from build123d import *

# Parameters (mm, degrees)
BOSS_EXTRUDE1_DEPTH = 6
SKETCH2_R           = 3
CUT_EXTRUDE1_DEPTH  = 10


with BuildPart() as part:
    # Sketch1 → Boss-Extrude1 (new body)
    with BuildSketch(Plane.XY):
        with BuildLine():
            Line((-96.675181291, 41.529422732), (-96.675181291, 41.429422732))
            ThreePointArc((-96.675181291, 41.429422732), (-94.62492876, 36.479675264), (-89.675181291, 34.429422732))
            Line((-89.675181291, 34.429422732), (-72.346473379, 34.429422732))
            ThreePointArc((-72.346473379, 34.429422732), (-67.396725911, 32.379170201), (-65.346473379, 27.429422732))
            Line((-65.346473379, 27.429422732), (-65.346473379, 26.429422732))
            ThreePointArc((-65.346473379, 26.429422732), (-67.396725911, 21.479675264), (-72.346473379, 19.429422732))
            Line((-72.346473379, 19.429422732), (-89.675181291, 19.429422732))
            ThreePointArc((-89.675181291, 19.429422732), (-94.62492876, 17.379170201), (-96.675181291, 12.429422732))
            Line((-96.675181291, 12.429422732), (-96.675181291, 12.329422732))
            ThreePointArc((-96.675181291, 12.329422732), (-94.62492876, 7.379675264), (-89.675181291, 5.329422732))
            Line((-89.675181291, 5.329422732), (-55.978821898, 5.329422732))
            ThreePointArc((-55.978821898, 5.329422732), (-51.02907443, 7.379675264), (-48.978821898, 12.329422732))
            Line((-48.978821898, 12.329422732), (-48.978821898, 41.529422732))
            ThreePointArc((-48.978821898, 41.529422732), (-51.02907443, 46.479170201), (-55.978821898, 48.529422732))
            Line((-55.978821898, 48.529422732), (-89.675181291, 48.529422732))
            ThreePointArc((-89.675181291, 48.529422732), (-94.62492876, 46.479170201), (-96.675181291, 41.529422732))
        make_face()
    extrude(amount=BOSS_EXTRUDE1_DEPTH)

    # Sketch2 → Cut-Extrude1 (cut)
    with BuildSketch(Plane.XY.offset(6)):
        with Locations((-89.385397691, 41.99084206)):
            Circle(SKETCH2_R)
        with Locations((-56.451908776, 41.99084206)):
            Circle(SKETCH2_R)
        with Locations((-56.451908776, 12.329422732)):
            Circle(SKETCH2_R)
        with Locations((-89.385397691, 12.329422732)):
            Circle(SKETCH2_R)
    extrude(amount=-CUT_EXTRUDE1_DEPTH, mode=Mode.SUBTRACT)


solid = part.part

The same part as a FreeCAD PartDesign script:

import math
import FreeCAD as App
import Part
import Sketcher

doc = App.newDocument("Part")
body = doc.addObject("PartDesign::Body", "Body")

sketch1 = doc.addObject("Sketcher::SketchObject", "Sketch")
body.addObject(sketch1)
sketch1.AttachmentSupport = (doc.XY_Plane, [""])
sketch1.MapMode = "FlatFace"
sketch1.addGeometry([
    Part.LineSegment(App.Vector(-96.675181, 41.529423, 0), App.Vector(-96.675181, 41.429423, 0)),
    Part.ArcOfCircle(Part.Circle(App.Vector(-89.675181, 41.429423, 0), App.Vector(0, 0, 1), 7), math.radians(180), math.radians(270)),
    Part.LineSegment(App.Vector(-89.675181, 34.429423, 0), App.Vector(-72.346473, 34.429423, 0)),
    Part.ArcOfCircle(Part.Circle(App.Vector(-72.346473, 27.429423, 0), App.Vector(0, 0, 1), 7), math.radians(0), math.radians(90)),
    Part.LineSegment(App.Vector(-65.346473, 27.429423, 0), App.Vector(-65.346473, 26.429423, 0)),
    Part.ArcOfCircle(Part.Circle(App.Vector(-72.346473, 26.429423, 0), App.Vector(0, 0, 1), 7), math.radians(-90), math.radians(0)),
    Part.LineSegment(App.Vector(-72.346473, 19.429423, 0), App.Vector(-89.675181, 19.429423, 0)),
    Part.ArcOfCircle(Part.Circle(App.Vector(-89.675181, 12.429423, 0), App.Vector(0, 0, 1), 7), math.radians(90), math.radians(180)),
    Part.LineSegment(App.Vector(-96.675181, 12.429423, 0), App.Vector(-96.675181, 12.329423, 0)),
    Part.ArcOfCircle(Part.Circle(App.Vector(-89.675181, 12.329423, 0), App.Vector(0, 0, 1), 7), math.radians(180), math.radians(270)),
    Part.LineSegment(App.Vector(-89.675181, 5.329423, 0), App.Vector(-55.978822, 5.329423, 0)),
    Part.ArcOfCircle(Part.Circle(App.Vector(-55.978822, 12.329423, 0), App.Vector(0, 0, 1), 7), math.radians(-90), math.radians(0)),
    Part.LineSegment(App.Vector(-48.978822, 12.329423, 0), App.Vector(-48.978822, 41.529423, 0)),
    Part.ArcOfCircle(Part.Circle(App.Vector(-55.978822, 41.529423, 0), App.Vector(0, 0, 1), 7), math.radians(0), math.radians(90)),
    Part.LineSegment(App.Vector(-55.978822, 48.529423, 0), App.Vector(-89.675181, 48.529423, 0)),
    Part.ArcOfCircle(Part.Circle(App.Vector(-89.675181, 41.529423, 0), App.Vector(0, 0, 1), 7), math.radians(90), math.radians(180)),
], False)
sketch1.addConstraint([
    Sketcher.Constraint("Tangent", 0, 2, 1, 1),
    Sketcher.Constraint("Tangent", 1, 2, 2, 1),
    Sketcher.Constraint("Tangent", 2, 2, 3, 2),
    Sketcher.Constraint("Tangent", 3, 1, 4, 1),
    Sketcher.Constraint("Tangent", 4, 2, 5, 2),
    Sketcher.Constraint("Tangent", 5, 1, 6, 1),
    Sketcher.Constraint("Tangent", 6, 2, 7, 1),
    Sketcher.Constraint("Tangent", 7, 2, 8, 1),
    Sketcher.Constraint("Tangent", 8, 2, 9, 1),
    Sketcher.Constraint("Tangent", 9, 2, 10, 1),
    Sketcher.Constraint("Tangent", 10, 2, 11, 1),
    Sketcher.Constraint("Tangent", 11, 2, 12, 1),
    Sketcher.Constraint("Tangent", 12, 2, 13, 1),
    Sketcher.Constraint("Tangent", 13, 2, 14, 1),
    Sketcher.Constraint("Tangent", 14, 2, 15, 1),
    Sketcher.Constraint("Tangent", 15, 2, 0, 1),
    Sketcher.Constraint("Vertical", 0),
    Sketcher.Constraint("Horizontal", 2),
    Sketcher.Constraint("Vertical", 4),
    Sketcher.Constraint("Horizontal", 6),
    Sketcher.Constraint("Vertical", 8),
    Sketcher.Constraint("Horizontal", 10),
    Sketcher.Constraint("Vertical", 12),
    Sketcher.Constraint("Horizontal", 14),
    Sketcher.Constraint("Equal", 1, 3),
    Sketcher.Constraint("Equal", 3, 5),
    Sketcher.Constraint("Equal", 5, 7),
    Sketcher.Constraint("Equal", 7, 9),
    Sketcher.Constraint("Equal", 9, 11),
    Sketcher.Constraint("Equal", 11, 13),
    Sketcher.Constraint("Equal", 13, 15),
    Sketcher.Constraint("Vertical", 1, 3, 7, 3),
    Sketcher.Constraint("Equal", 0, 8),
    Sketcher.Constraint("Radius", 1, 7.0),
    Sketcher.Constraint("DistanceY", 4, 2, 4, 1, 1.0),
    Sketcher.Constraint("DistanceY", 0, 2, 0, 1, 0.1),
    Sketcher.Constraint("DistanceX", 10, 1, 10, 2, 33.696359),
    Sketcher.Constraint("DistanceX", 2, 1, 2, 2, 17.328708),
    Sketcher.Constraint("DistanceX", 1, 3, -1, 1, 89.675181),
    Sketcher.Constraint("DistanceY", -1, 1, 1, 3, 41.429423),
])
pad1 = doc.addObject("PartDesign::Pad", "Pad")
body.addObject(pad1)
pad1.Profile = sketch1
pad1.Length = 6

sketch2 = doc.addObject("Sketcher::SketchObject", "Sketch001")
body.addObject(sketch2)
sketch2.AttachmentSupport = (doc.XY_Plane, [""])
sketch2.MapMode = "FlatFace"
sketch2.AttachmentOffset = App.Placement(App.Vector(0, 0, 6), App.Rotation())
sketch2.addGeometry([
    Part.Circle(App.Vector(-89.385398, 41.990842, 0), App.Vector(0, 0, 1), 3),
    Part.Circle(App.Vector(-56.451909, 41.990842, 0), App.Vector(0, 0, 1), 3),
    Part.Circle(App.Vector(-56.451909, 12.329423, 0), App.Vector(0, 0, 1), 3),
    Part.Circle(App.Vector(-89.385398, 12.329423, 0), App.Vector(0, 0, 1), 3),
], False)
sketch2.addConstraint([
    Sketcher.Constraint("Equal", 0, 1),
    Sketcher.Constraint("Equal", 1, 2),
    Sketcher.Constraint("Equal", 2, 3),
    Sketcher.Constraint("Horizontal", 0, 3, 1, 3),
    Sketcher.Constraint("Horizontal", 2, 3, 3, 3),
    Sketcher.Constraint("Vertical", 1, 3, 2, 3),
    Sketcher.Constraint("Vertical", 0, 3, 3, 3),
    Sketcher.Constraint("Diameter", 0, 6.0),
    Sketcher.Constraint("DistanceX", 1, 3, -1, 1, 56.451909),
    Sketcher.Constraint("DistanceX", 0, 3, 1, 3, 32.933489),
    Sketcher.Constraint("DistanceY", 2, 3, 1, 3, 29.661419),
    Sketcher.Constraint("DistanceY", -1, 1, 0, 3, 41.990842),
])
pocket1 = doc.addObject("PartDesign::Pocket", "Pocket")
body.addObject(pocket1)
pocket1.Profile = sketch2
pocket1.Length = 10

doc.recompute()
